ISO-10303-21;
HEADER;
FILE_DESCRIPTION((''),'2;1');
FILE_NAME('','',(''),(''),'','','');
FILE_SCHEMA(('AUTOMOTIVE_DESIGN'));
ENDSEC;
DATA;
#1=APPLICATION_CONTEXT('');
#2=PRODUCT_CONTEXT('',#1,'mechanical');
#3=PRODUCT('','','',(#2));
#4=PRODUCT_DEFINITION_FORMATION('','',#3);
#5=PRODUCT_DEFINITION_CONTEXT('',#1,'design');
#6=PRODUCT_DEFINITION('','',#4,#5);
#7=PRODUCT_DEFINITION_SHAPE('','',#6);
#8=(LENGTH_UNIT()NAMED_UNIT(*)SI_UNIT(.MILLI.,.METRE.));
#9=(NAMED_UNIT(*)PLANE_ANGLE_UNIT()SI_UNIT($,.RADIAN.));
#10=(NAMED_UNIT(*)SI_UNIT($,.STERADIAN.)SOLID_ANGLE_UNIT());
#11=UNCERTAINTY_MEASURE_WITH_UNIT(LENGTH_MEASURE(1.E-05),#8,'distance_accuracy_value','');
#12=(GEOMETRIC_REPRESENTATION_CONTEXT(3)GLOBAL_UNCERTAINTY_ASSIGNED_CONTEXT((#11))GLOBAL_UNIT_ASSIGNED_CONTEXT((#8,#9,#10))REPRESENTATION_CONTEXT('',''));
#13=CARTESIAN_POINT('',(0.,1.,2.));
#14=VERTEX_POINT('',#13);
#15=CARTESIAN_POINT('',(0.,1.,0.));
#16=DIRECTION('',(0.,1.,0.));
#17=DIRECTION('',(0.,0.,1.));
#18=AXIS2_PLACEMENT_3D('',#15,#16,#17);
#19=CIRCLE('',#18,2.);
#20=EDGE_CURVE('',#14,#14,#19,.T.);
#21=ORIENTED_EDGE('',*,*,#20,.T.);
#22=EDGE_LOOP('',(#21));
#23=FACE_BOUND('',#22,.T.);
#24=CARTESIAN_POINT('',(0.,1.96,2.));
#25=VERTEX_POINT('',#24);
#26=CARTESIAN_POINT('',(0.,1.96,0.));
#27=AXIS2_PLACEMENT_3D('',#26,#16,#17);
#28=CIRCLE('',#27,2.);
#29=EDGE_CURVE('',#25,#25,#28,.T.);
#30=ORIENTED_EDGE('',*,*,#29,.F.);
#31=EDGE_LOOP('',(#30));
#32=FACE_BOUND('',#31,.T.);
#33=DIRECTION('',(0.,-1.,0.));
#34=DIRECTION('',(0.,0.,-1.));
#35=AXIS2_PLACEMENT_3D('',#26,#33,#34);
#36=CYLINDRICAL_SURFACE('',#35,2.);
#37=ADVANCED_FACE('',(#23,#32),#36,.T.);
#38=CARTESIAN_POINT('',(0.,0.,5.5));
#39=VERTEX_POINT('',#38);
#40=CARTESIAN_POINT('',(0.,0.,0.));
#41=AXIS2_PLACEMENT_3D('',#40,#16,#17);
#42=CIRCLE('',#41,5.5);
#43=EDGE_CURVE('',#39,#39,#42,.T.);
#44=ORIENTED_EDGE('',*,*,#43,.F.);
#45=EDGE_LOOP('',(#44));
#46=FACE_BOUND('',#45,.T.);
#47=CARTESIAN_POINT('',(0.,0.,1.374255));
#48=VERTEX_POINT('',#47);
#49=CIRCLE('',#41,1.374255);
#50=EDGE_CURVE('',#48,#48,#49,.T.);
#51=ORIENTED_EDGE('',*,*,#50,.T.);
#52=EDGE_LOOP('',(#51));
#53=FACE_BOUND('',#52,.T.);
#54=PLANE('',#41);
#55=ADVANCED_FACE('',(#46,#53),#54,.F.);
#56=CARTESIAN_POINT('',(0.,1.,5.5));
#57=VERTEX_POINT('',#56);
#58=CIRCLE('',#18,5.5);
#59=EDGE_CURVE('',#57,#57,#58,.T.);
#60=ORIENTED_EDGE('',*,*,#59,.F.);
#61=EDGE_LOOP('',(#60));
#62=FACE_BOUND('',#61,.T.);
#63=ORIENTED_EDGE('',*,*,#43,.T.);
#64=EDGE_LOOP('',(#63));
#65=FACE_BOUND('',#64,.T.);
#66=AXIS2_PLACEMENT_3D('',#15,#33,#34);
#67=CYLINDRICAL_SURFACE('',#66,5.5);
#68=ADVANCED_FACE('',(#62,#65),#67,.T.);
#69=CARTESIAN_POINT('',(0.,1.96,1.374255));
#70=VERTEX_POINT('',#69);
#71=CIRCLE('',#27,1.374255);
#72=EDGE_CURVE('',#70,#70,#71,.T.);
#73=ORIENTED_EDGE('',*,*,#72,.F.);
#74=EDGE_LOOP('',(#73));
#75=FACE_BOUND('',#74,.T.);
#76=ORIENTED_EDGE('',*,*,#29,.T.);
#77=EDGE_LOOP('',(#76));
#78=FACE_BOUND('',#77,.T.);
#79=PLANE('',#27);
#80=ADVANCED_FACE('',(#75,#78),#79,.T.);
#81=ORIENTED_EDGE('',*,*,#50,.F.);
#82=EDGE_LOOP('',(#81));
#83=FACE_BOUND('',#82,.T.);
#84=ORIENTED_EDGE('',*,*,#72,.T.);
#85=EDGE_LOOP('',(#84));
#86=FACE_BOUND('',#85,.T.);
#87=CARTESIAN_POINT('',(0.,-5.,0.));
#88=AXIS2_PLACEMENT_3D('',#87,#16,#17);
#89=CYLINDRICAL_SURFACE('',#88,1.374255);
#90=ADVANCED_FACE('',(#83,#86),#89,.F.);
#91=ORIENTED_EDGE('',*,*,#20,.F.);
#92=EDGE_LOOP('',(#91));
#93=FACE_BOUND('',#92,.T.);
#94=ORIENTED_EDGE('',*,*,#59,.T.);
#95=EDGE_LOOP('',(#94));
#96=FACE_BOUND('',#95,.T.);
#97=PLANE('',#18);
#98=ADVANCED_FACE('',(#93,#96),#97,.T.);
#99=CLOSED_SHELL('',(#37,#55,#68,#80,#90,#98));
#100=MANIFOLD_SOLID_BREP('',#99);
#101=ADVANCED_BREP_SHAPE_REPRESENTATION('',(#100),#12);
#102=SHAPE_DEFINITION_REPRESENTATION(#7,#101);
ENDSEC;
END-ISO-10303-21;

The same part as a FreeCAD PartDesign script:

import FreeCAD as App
import Part
import Sketcher
from FreeCAD import Vector

doc = App.newDocument("Part")
body = doc.addObject("PartDesign::Body", "Body")

sketch1 = body.newObject("Sketcher::SketchObject", "Sketch")
sketch1.AttachmentSupport = (doc.getObject("XZ_Plane"), [""])
sketch1.MapMode = "FlatFace"
sketch1.addGeometry(Part.Circle(Vector(0, 0, 0), Vector(0, 0, 1), 6), False)
sketch1.addConstraint([
    Sketcher.Constraint("Coincident", 0, 3, -1, 1),
    Sketcher.Constraint("Diameter", 0, 11.0),
])
pad1 = body.newObject("PartDesign::Pad", "Pad")
pad1.Profile = sketch1
pad1.Length = 1
pad1.Reversed = True

sketch2 = body.newObject("Sketcher::SketchObject", "Sketch001")
sketch2.AttachmentSupport = (doc.getObject("XZ_Plane"), [""])
sketch2.MapMode = "FlatFace"
sketch2.AttachmentOffset = App.Placement(Vector(0, 0, -1), App.Rotation())
sketch2.addGeometry(Part.Circle(Vector(0, 0, 0), Vector(0, 0, 1), 2), False)
sketch2.addConstraint([
    Sketcher.Constraint("Coincident", 0, 3, -1, 1),
    Sketcher.Constraint("Diameter", 0, 4.0),
])
pad2 = body.newObject("PartDesign::Pad", "Pad001")
pad2.Profile = sketch2
pad2.Length = 0.96
pad2.Reversed = True

sketch3 = body.newObject("Sketcher::SketchObject", "Sketch002")
sketch3.AttachmentSupport = (doc.getObject("XZ_Plane"), [""])
sketch3.MapMode = "FlatFace"
sketch3.AttachmentOffset = App.Placement(Vector(0, 0, -1.96), App.Rotation())
sketch3.addGeometry(Part.Circle(Vector(0, 0, 0), Vector(0, 0, 1), 1.4), False)
sketch3.addConstraint([
    Sketcher.Constraint("Coincident", 0, 3, -1, 1),
    Sketcher.Constraint("Diameter", 0, 2.748511),
])
pocket1 = body.newObject("PartDesign::Pocket", "Pocket")
pocket1.Profile = sketch3
pocket1.Length = 6.96
pocket1.Reversed = True

doc.recompute()
